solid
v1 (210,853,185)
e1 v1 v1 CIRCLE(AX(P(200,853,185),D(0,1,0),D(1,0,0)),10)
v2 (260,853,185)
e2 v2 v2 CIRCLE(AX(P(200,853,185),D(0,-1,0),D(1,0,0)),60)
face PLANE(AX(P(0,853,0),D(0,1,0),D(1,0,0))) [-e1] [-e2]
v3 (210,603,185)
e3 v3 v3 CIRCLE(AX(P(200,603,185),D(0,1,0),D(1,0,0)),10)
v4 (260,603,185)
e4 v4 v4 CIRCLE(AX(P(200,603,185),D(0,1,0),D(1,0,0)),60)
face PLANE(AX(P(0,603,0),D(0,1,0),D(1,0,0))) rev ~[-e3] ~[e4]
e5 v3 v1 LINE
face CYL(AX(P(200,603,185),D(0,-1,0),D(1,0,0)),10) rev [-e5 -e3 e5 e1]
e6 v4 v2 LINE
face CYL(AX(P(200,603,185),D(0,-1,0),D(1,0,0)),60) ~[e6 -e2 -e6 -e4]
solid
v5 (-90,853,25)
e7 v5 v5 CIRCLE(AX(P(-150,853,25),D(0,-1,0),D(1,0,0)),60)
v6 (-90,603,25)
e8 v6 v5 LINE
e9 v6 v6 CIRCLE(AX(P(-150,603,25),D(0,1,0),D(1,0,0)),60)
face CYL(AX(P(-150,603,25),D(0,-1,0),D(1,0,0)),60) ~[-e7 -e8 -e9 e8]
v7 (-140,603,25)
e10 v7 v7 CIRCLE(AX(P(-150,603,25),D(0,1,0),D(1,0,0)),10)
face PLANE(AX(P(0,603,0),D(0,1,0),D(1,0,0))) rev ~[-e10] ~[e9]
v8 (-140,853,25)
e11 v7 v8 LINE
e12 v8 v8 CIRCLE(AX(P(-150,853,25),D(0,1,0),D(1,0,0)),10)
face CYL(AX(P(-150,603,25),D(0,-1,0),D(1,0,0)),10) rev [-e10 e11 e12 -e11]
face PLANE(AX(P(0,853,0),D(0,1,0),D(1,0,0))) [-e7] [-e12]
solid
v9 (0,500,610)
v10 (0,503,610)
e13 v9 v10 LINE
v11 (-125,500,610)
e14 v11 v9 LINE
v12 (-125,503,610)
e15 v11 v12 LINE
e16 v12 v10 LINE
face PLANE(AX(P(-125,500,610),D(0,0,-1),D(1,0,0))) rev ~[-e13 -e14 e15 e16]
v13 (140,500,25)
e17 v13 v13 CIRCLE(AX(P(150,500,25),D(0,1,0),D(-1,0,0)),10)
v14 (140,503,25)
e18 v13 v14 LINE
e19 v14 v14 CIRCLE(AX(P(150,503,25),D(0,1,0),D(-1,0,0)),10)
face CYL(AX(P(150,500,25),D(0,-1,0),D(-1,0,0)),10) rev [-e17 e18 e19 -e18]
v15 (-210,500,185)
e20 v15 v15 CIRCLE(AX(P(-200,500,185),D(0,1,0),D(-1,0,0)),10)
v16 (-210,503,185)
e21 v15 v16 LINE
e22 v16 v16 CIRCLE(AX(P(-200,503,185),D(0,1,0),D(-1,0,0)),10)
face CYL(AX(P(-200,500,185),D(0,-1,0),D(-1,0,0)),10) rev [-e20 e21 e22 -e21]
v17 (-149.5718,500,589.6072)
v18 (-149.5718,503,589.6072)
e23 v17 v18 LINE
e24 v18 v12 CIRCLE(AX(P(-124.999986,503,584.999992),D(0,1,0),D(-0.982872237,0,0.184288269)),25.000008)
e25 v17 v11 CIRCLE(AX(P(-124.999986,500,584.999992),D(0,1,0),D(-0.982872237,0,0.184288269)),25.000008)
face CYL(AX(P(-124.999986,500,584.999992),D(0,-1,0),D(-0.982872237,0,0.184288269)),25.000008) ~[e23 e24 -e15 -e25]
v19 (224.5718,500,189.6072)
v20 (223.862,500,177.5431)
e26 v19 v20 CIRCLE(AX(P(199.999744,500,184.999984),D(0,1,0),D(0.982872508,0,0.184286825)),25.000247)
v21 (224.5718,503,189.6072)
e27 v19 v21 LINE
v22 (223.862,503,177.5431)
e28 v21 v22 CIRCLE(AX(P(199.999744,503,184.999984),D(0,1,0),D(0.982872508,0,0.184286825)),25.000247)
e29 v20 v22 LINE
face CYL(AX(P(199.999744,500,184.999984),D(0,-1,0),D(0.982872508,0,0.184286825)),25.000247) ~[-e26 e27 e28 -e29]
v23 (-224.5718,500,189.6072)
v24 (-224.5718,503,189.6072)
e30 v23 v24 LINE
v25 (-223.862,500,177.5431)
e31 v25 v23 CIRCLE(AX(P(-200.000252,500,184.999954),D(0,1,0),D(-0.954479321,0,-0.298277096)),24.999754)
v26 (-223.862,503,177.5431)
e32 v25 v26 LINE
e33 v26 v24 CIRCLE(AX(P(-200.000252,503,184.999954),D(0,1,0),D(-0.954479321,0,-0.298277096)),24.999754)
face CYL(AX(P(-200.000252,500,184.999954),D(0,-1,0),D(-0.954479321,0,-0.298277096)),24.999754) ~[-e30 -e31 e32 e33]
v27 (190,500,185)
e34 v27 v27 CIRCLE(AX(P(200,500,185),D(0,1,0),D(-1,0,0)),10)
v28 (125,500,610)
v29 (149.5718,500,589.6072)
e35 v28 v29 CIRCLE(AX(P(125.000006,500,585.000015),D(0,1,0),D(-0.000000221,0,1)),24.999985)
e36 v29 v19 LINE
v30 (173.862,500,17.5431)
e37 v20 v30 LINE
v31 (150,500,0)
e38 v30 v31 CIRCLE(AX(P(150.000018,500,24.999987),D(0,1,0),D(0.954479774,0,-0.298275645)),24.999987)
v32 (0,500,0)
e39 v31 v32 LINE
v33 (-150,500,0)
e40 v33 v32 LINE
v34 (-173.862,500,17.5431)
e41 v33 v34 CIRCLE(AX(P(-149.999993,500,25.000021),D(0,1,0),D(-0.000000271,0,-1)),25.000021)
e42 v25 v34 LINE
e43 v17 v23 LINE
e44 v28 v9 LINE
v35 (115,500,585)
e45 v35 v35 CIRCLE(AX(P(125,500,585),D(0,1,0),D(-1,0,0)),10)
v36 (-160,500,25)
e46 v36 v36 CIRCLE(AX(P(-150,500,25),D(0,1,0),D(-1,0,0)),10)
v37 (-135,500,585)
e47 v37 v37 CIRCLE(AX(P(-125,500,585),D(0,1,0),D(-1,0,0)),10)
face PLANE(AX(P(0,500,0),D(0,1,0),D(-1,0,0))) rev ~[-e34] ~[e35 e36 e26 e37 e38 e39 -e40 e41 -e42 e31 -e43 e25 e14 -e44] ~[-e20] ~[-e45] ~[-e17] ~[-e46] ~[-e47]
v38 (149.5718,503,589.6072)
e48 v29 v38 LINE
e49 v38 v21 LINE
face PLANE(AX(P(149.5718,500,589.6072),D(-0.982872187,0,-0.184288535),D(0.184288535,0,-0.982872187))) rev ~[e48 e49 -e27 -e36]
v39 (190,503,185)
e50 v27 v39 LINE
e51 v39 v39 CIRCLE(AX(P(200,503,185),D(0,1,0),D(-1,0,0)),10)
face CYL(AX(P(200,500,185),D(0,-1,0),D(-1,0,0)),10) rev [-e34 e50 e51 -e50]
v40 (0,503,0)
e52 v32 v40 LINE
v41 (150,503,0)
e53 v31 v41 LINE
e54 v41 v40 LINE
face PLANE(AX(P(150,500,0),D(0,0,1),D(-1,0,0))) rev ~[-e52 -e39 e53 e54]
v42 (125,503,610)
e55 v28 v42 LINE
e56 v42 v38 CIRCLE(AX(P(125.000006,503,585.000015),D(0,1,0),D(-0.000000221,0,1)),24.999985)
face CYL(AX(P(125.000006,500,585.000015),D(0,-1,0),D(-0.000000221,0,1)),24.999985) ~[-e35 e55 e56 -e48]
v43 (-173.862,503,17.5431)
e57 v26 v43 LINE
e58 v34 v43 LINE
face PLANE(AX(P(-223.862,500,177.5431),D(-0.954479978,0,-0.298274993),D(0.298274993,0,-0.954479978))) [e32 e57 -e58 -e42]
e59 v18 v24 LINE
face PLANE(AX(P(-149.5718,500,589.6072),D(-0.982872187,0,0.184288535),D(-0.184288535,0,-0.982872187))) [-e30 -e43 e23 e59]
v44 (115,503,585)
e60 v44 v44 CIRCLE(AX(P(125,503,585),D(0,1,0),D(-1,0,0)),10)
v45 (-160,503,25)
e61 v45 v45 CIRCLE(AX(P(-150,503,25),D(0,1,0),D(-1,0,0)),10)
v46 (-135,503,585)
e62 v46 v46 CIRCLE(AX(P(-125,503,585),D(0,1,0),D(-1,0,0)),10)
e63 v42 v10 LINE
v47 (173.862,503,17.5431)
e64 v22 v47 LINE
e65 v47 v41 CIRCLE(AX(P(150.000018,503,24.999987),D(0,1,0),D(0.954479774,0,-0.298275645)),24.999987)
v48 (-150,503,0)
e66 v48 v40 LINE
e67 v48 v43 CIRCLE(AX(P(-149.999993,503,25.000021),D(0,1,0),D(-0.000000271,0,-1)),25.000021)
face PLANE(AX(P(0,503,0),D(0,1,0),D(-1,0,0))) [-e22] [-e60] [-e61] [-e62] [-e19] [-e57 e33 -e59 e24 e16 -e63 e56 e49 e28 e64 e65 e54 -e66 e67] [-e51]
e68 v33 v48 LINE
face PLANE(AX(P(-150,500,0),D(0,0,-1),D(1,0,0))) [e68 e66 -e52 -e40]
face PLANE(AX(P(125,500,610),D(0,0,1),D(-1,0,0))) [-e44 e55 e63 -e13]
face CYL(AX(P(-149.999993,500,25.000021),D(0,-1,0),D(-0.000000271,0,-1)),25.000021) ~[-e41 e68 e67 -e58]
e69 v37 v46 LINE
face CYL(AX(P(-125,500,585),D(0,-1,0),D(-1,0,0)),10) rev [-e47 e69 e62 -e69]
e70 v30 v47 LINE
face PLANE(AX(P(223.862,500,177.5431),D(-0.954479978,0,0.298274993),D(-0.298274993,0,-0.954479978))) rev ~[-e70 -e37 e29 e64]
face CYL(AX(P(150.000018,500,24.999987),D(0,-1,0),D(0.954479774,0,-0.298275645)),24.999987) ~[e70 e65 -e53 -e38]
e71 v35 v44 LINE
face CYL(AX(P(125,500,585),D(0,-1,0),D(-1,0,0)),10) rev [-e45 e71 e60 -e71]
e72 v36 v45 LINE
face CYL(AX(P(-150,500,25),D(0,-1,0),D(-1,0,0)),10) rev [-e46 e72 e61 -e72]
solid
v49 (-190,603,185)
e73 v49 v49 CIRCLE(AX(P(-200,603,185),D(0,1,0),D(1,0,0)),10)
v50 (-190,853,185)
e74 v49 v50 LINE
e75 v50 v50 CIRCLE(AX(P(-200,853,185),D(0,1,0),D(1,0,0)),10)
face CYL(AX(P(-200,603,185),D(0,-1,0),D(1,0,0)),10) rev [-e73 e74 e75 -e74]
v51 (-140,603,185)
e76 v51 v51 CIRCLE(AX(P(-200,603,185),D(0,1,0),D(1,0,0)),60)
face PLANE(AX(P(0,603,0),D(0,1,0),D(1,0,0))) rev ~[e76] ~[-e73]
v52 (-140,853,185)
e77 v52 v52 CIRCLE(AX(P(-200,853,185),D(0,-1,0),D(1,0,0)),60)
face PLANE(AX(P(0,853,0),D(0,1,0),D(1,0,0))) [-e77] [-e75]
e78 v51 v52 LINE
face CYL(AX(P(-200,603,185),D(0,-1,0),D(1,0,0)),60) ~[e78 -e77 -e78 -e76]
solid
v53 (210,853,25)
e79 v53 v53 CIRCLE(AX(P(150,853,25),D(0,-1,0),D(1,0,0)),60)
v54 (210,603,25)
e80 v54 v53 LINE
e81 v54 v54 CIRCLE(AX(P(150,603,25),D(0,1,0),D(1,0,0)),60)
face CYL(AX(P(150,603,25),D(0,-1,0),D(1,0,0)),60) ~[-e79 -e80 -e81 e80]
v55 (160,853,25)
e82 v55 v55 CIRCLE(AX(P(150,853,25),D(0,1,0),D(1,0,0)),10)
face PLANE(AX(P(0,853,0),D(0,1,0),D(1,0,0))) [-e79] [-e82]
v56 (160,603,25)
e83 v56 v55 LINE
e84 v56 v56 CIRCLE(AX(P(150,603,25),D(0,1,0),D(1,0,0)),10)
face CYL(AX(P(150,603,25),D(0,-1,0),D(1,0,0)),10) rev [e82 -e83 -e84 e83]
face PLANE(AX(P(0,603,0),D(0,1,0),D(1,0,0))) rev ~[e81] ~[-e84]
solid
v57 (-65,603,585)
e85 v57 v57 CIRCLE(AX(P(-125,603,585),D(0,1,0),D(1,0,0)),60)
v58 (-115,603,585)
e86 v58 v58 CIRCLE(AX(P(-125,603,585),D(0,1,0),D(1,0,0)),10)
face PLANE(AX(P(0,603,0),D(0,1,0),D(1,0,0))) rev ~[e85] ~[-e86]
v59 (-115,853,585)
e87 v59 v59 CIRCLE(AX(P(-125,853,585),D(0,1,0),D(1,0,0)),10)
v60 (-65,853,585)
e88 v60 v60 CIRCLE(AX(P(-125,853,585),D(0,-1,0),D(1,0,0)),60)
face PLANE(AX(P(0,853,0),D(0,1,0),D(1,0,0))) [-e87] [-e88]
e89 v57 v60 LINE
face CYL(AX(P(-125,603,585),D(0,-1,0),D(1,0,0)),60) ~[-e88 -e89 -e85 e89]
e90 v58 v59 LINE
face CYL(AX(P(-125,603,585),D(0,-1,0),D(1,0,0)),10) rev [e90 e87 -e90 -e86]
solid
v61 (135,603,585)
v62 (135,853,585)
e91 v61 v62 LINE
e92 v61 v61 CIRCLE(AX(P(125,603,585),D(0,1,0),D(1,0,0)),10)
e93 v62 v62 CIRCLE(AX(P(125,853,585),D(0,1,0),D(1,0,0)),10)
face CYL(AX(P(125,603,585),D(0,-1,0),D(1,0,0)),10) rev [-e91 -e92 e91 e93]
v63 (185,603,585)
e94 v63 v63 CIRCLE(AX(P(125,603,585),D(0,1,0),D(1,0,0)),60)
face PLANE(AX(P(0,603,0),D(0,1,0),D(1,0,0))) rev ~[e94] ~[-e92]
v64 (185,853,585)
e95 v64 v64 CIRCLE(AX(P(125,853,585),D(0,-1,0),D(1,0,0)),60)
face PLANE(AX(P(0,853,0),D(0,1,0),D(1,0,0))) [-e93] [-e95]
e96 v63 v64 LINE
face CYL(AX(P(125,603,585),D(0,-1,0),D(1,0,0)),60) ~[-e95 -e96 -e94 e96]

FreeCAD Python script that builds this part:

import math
import FreeCAD as App
import Part
import Sketcher
from FreeCAD import Vector

doc = App.newDocument("Part")
body = doc.addObject("PartDesign::Body", "Body")
body.AllowCompound = True

# Sketch on XZ plane
sketch1 = doc.addObject("Sketcher::SketchObject", "Sketch")
body.addObject(sketch1)
sketch1.AttachmentSupport = (doc.XZ_Plane, [""])
sketch1.MapMode = "FlatFace"
sketch1.AttachmentOffset = App.Placement(Vector(0, 0, -500), App.Rotation())
sketch1.addGeometry([
    Part.LineSegment(Vector(-125, 610, 0), Vector(125, 610, 0)),  # 0
    Part.ArcOfCircle(Part.Circle(Vector(125, 585, 0), Vector(0, 0, 1), 25), math.radians(11), math.radians(90)),  # 1
    Part.LineSegment(Vector(150, 590, 0), Vector(225, 190, 0)),  # 2
    Part.ArcOfCircle(Part.Circle(Vector(200, 185, 0), Vector(0, 0, 1), 25), math.radians(-17), math.radians(11)),  # 3
    Part.LineSegment(Vector(224, 178, 0), Vector(174, 18, 0)),  # 4
    Part.ArcOfCircle(Part.Circle(Vector(150, 25, 0), Vector(0, 0, 1), 25), math.radians(-90), math.radians(-17)),  # 5
    Part.LineSegment(Vector(150, 0, 0), Vector(-150, 0, 0)),  # 6
    Part.ArcOfCircle(Part.Circle(Vector(-150, 25, 0), Vector(0, 0, 1), 25), math.radians(-163), math.radians(-90)),  # 7
    Part.LineSegment(Vector(-174, 18, 0), Vector(-224, 178, 0)),  # 8
    Part.ArcOfCircle(Part.Circle(Vector(-200, 185, 0), Vector(0, 0, 1), 25), math.radians(169), math.radians(197)),  # 9
    Part.LineSegment(Vector(-225, 190, 0), Vector(-150, 590, 0)),  # 10
    Part.ArcOfCircle(Part.Circle(Vector(-125, 585, 0), Vector(0, 0, 1), 25), math.radians(90), math.radians(169)),  # 11
    Part.Circle(Vector(150, 25, 0), Vector(0, 0, 1), 10),  # 12
    Part.Circle(Vector(200, 185, 0), Vector(0, 0, 1), 10),  # 13
    Part.Circle(Vector(-150, 25, 0), Vector(0, 0, 1), 10),  # 14
    Part.Circle(Vector(-200, 185, 0), Vector(0, 0, 1), 10),  # 15
    Part.Circle(Vector(125, 585, 0), Vector(0, 0, 1), 10),  # 16
    Part.Circle(Vector(-125, 585, 0), Vector(0, 0, 1), 10),  # 17
], False)
sketch1.addConstraint([
    Sketcher.Constraint("Tangent", 0, 2, 1, 2),
    Sketcher.Constraint("Tangent", 1, 1, 2, 1),
    Sketcher.Constraint("Tangent", 2, 2, 3, 2),
    Sketcher.Constraint("Tangent", 3, 1, 4, 1),
    Sketcher.Constraint("Tangent", 4, 2, 5, 2),
    Sketcher.Constraint("Tangent", 5, 1, 6, 1),
    Sketcher.Constraint("Tangent", 6, 2, 7, 2),
    Sketcher.Constraint("Tangent", 7, 1, 8, 1),
    Sketcher.Constraint("Tangent", 8, 2, 9, 2),
    Sketcher.Constraint("Tangent", 9, 1, 10, 1),
    Sketcher.Constraint("Tangent", 10, 2, 11, 2),
    Sketcher.Constraint("Tangent", 11, 1, 0, 1),
    Sketcher.Constraint("Horizontal", 0),
    Sketcher.Constraint("Horizontal", 6),
    Sketcher.Constraint("Coincident", 12, 3, 5, 3),
    Sketcher.Constraint("Coincident", 13, 3, 3, 3),
    Sketcher.Constraint("Coincident", 14, 3, 7, 3),
    Sketcher.Constraint("Coincident", 15, 3, 9, 3),
    Sketcher.Constraint("Coincident", 16, 3, 1, 3),
    Sketcher.Constraint("Coincident", 17, 3, 11, 3),
    Sketcher.Constraint("Equal", 1, 3),
    Sketcher.Constraint("Equal", 3, 5),
    Sketcher.Constraint("Equal", 5, 7),
    Sketcher.Constraint("Equal", 7, 9),
    Sketcher.Constraint("Equal", 9, 11),
    Sketcher.Constraint("Equal", 12, 13),
    Sketcher.Constraint("Equal", 13, 14),
    Sketcher.Constraint("Equal", 14, 15),
    Sketcher.Constraint("Equal", 15, 16),
    Sketcher.Constraint("Equal", 16, 17),
    Sketcher.Constraint("Symmetric", 5, 1, 6, 2, -1, 1),
    Sketcher.Constraint("Symmetric", 3, 3, 9, 3, -2),
    Sketcher.Constraint("Equal", 2, 10),
    Sketcher.Constraint("Diameter", 12, 20.0),
    Sketcher.Constraint("Radius", 1, 25.0),
    Sketcher.Constraint("DistanceX", 0, 1, 0, 2, 250.0),
    Sketcher.Constraint("DistanceX", 6, 2, 6, 1, 300.0),
    Sketcher.Constraint("DistanceY", 3, 3, 1, 3, 400.0),
    Sketcher.Constraint("DistanceX", 5, 3, 3, 3, 50.0),
    Sketcher.Constraint("DistanceY", 5, 3, 3, 3, 160.0),
])
pad1 = doc.addObject("PartDesign::Pad", "Pad")
body.addObject(pad1)
pad1.Profile = sketch1
pad1.Length = 3
pad1.Reversed = True

# Sketch on XZ plane
sketch2 = doc.addObject("Sketcher::SketchObject", "Sketch001")
body.addObject(sketch2)
sketch2.AttachmentSupport = (doc.XZ_Plane, [""])
sketch2.MapMode = "FlatFace"
sketch2.AttachmentOffset = App.Placement(Vector(0, 0, -603), App.Rotation())
sketch2.addGeometry([
    Part.Circle(Vector(150, 25, 0), Vector(0, 0, 1), 60),  # 0
    Part.Circle(Vector(150, 25, 0), Vector(0, 0, 1), 10),  # 1
    Part.Circle(Vector(-150, 25, 0), Vector(0, 0, 1), 60),  # 2
    Part.Circle(Vector(-150, 25, 0), Vector(0, 0, 1), 10),  # 3
    Part.Circle(Vector(200, 185, 0), Vector(0, 0, 1), 60),  # 4
    Part.Circle(Vector(200, 185, 0), Vector(0, 0, 1), 10),  # 5
    Part.Circle(Vector(-200, 185, 0), Vector(0, 0, 1), 60),  # 6
    Part.Circle(Vector(-200, 185, 0), Vector(0, 0, 1), 10),  # 7
    Part.Circle(Vector(125, 585, 0), Vector(0, 0, 1), 60),  # 8
    Part.Circle(Vector(125, 585, 0), Vector(0, 0, 1), 10),  # 9
    Part.Circle(Vector(-125, 585, 0), Vector(0, 0, 1), 60),  # 10
    Part.Circle(Vector(-125, 585, 0), Vector(0, 0, 1), 10),  # 11
], False)
sketch2.addConstraint([
    Sketcher.Constraint("Coincident", 1, 3, 0, 3),
    Sketcher.Constraint("Coincident", 3, 3, 2, 3),
    Sketcher.Constraint("Coincident", 5, 3, 4, 3),
    Sketcher.Constraint("Coincident", 7, 3, 6, 3),
    Sketcher.Constraint("Coincident", 9, 3, 8, 3),
    Sketcher.Constraint("Coincident", 11, 3, 10, 3),
    Sketcher.Constraint("Equal", 0, 2),
    Sketcher.Constraint("Equal", 1, 3),
    Sketcher.Constraint("Equal", 2, 4),
    Sketcher.Constraint("Equal", 3, 5),
    Sketcher.Constraint("Equal", 4, 6),
    Sketcher.Constraint("Equal", 5, 7),
    Sketcher.Constraint("Equal", 6, 8),
    Sketcher.Constraint("Equal", 7, 9),
    Sketcher.Constraint("Equal", 8, 10),
    Sketcher.Constraint("Equal", 9, 11),
    Sketcher.Constraint("Symmetric", 0, 3, 2, 3, -2),
    Sketcher.Constraint("Symmetric", 4, 3, 6, 3, -2),
    Sketcher.Constraint("Symmetric", 8, 3, 10, 3, -2),
    Sketcher.Constraint("Diameter", 0, 120.0),
    Sketcher.Constraint("Diameter", 1, 20.0),
    Sketcher.Constraint("DistanceX", -1, 1, 0, 3, 150.0),
    Sketcher.Constraint("DistanceY", -1, 1, 0, 3, 25.0),
    Sketcher.Constraint("DistanceX", -1, 1, 4, 3, 200.0),
    Sketcher.Constraint("DistanceY", -1, 1, 4, 3, 185.0),
    Sketcher.Constraint("DistanceX", -1, 1, 8, 3, 125.0),
    Sketcher.Constraint("DistanceY", -1, 1, 8, 3, 585.0),
])
pad2 = doc.addObject("PartDesign::Pad", "Pad001")
body.addObject(pad2)
pad2.Profile = sketch2
pad2.Length = 250
pad2.Reversed = True

doc.recompute()
